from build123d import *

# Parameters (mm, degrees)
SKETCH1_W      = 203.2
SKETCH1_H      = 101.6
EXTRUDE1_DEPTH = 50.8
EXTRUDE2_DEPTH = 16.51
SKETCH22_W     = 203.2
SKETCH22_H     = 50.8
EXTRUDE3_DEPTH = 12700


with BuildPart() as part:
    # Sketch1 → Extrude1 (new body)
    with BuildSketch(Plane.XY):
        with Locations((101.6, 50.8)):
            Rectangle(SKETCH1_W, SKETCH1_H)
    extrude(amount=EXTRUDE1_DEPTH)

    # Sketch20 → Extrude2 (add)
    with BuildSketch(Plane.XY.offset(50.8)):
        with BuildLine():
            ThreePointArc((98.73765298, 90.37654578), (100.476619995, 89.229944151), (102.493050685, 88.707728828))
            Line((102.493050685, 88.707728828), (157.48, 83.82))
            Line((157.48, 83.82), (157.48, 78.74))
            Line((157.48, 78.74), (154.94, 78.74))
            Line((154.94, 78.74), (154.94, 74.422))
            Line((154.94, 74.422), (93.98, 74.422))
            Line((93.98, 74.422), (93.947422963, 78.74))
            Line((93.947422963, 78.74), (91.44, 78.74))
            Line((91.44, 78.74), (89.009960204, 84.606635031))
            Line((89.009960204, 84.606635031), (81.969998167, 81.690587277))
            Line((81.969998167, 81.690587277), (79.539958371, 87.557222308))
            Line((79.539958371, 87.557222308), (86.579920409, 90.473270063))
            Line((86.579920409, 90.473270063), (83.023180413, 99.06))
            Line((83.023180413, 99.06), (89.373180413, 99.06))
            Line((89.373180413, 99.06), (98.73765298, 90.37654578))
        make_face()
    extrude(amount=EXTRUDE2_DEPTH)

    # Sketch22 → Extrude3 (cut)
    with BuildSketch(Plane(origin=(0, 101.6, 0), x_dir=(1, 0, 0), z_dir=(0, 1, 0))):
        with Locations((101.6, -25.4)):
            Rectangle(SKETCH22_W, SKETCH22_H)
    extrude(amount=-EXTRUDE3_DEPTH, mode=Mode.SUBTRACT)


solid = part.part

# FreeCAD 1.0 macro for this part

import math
import FreeCAD as App
import Part
import Sketcher
from FreeCAD import Vector
Q = App.Units.Quantity


def add_polygon(sketch, points):
    """Adds a closed chain of lines whose ends are joined by coincident constraints."""
    first, n = sketch.GeometryCount, len(points)
    for a, b in zip(points, points[1:] + points[:1]):
        sketch.addGeometry(Part.LineSegment(App.Vector(*a, 0), App.Vector(*b, 0)), False)
    for i in range(n):
        sketch.addConstraint(Sketcher.Constraint("Coincident", first + i, 2, first + (i + 1) % n, 1))

doc = App.newDocument("Part")
body = doc.addObject("PartDesign::Body", "Body")

sketch1 = doc.addObject("Sketcher::SketchObject", "Sketch")
body.addObject(sketch1)
sketch1.AttachmentSupport = (doc.XY_Plane, [""])
sketch1.MapMode = "FlatFace"
add_polygon(sketch1, [(0, 102), (0, 0), (203, 0), (203, 102)])
sketch1.addConstraint([
    Sketcher.Constraint("Vertical", 0),
    Sketcher.Constraint("Horizontal", 1),
    Sketcher.Constraint("Vertical", 2),
    Sketcher.Constraint("Horizontal", 3),
    Sketcher.Constraint("Coincident", 0, 2, -1, 1),
    Sketcher.Constraint("DistanceX", 1, 1, 1, 2, Q("8 in")),
    Sketcher.Constraint("DistanceY", 0, 2, 0, 1, Q("4 in")),
])
pad1 = doc.addObject("PartDesign::Pad", "Pad")
body.addObject(pad1)
pad1.Profile = sketch1
pad1.Length = Q("2 in")

sketch2 = doc.addObject("Sketcher::SketchObject", "Sketch001")
body.addObject(sketch2)
sketch2.AttachmentSupport = (doc.XY_Plane, [""])
sketch2.MapMode = "FlatFace"
sketch2.AttachmentOffset = App.Placement(Vector(0, 0, 2 * 25.4), App.Rotation())
sketch2.addGeometry([
    Part.ArcOfCircle(Part.Circle(Vector(103.1, 95, 0), Vector(0, 0, 1), 6.4), math.radians(-133), math.radians(-95)),
    Part.LineSegment(Vector(98.7, 90.4, 0), Vector(89.4, 99.1, 0)),
    Part.LineSegment(Vector(89.4, 99.1, 0), Vector(83, 99.1, 0)),
    Part.LineSegment(Vector(83, 99.1, 0), Vector(86.6, 90.5, 0)),
    Part.LineSegment(Vector(86.6, 90.5, 0), Vector(79.5, 87.6, 0)),
    Part.LineSegment(Vector(79.5, 87.6, 0), Vector(82, 81.7, 0)),
    Part.LineSegment(Vector(82, 81.7, 0), Vector(89, 84.6, 0)),
    Part.LineSegment(Vector(89, 84.6, 0), Vector(91.4, 78.7, 0)),
    Part.LineSegment(Vector(91.4, 78.7, 0), Vector(93.9, 78.7, 0)),
    Part.LineSegment(Vector(93.9, 78.7, 0), Vector(94, 74.4, 0)),
    Part.LineSegment(Vector(94, 74.4, 0), Vector(154.9, 74.4, 0)),
    Part.LineSegment(Vector(154.9, 74.4, 0), Vector(154.9, 78.7, 0)),
    Part.LineSegment(Vector(154.9, 78.7, 0), Vector(157.5, 78.7, 0)),
    Part.LineSegment(Vector(157.5, 78.7, 0), Vector(157.5, 83.8, 0)),
    Part.LineSegment(Vector(157.5, 83.8, 0), Vector(102.5, 88.7, 0)),
], False)
sketch2.addConstraint([
    Sketcher.Constraint("Tangent", 0, 1, 1, 1),
    Sketcher.Constraint("Coincident", 1, 2, 2, 1),
    Sketcher.Constraint("Coincident", 2, 2, 3, 1),
    Sketcher.Constraint("Coincident", 3, 2, 4, 1),
    Sketcher.Constraint("Coincident", 4, 2, 5, 1),
    Sketcher.Constraint("Coincident", 5, 2, 6, 1),
    Sketcher.Constraint("Coincident", 6, 2, 7, 1),
    Sketcher.Constraint("Coincident", 7, 2, 8, 1),
    Sketcher.Constraint("Coincident", 8, 2, 9, 1),
    Sketcher.Constraint("Coincident", 9, 2, 10, 1),
    Sketcher.Constraint("Coincident", 10, 2, 11, 1),
    Sketcher.Constraint("Coincident", 11, 2, 12, 1),
    Sketcher.Constraint("Coincident", 12, 2, 13, 1),
    Sketcher.Constraint("Coincident", 13, 2, 14, 1),
    Sketcher.Constraint("Tangent", 14, 2, 0, 2),
    Sketcher.Constraint("Horizontal", 2),
    Sketcher.Constraint("Horizontal", 8),
    Sketcher.Constraint("Horizontal", 10),
    Sketcher.Constraint("Vertical", 11),
    Sketcher.Constraint("Horizontal", 12),
    Sketcher.Constraint("Vertical", 13),
    Sketcher.Constraint("Perpendicular", 3, 4),
    Sketcher.Constraint("Perpendicular", 4, 5),
    Sketcher.Constraint("Perpendicular", 5, 6),
    Sketcher.Constraint("Perpendicular", 6, 7),
    Sketcher.Constraint("Horizontal", 8, 2, 11, 2),
    Sketcher.Constraint("Equal", 4, 6),
    Sketcher.Constraint("Equal", 5, 7),
    Sketcher.Constraint("Radius", 0, Q("0.25 in")),
    Sketcher.Constraint("DistanceX", 10, 1, 10, 2, Q("2.4 in")),
    Sketcher.Constraint("DistanceX", 12, 1, 12, 2, Q("0.1 in")),
    Sketcher.Constraint("DistanceY", 13, 1, 13, 2, Q("0.2 in")),
    Sketcher.Constraint("Distance", 4, Q("0.3 in")),
    Sketcher.Constraint("DistanceX", 2, 2, 2, 1, Q("0.25 in")),
    Sketcher.Constraint("DistanceY", 11, 1, 11, 2, Q("0.17 in")),
    Sketcher.Constraint("DistanceY", -1, 1, 1, 2, Q("3.9 in")),
    Sketcher.Constraint("DistanceX", -1, 1, 7, 2, Q("3.6 in")),
    Sketcher.Constraint("DistanceY", -1, 1, 7, 2, Q("3.1 in")),
    Sketcher.Constraint("DistanceX", -1, 1, 9, 2, Q("3.7 in")),
    Sketcher.Constraint("Angle", 3, Q("-67.5 deg")),
    Sketcher.Constraint("Distance", 5, Q("0.25 in")),
    Sketcher.Constraint("DistanceX", 4, 2, 0, 3, Q("0.9258 in")),
    Sketcher.Constraint("DistanceX", 8, 1, 8, 2, Q("2.507423 mm")),
    Sketcher.Constraint("DistanceY", -1, 1, 0, 3, Q("95.03279 mm")),
])
pad2 = doc.addObject("PartDesign::Pad", "Pad001")
body.addObject(pad2)
pad2.Profile = sketch2
pad2.Length = Q("0.65 in")

sketch3 = doc.addObject("Sketcher::SketchObject", "Sketch002")
body.addObject(sketch3)
sketch3.AttachmentSupport = (doc.XZ_Plane, [""])
sketch3.MapMode = "FlatFace"
sketch3.AttachmentOffset = App.Placement(Vector(0, 0, -4 * 25.4), App.Rotation())
add_polygon(sketch3, [(0, 0), (0, 51), (203, 51), (203, 0)])
sketch3.addConstraint([
    Sketcher.Constraint("Vertical", 0),
    Sketcher.Constraint("Horizontal", 1),
    Sketcher.Constraint("Vertical", 2),
    Sketcher.Constraint("Horizontal", 3),
    Sketcher.Constraint("Coincident", 3, 2, -1, 1),
    Sketcher.Constraint("DistanceX", 1, 1, 1, 2, Q("8 in")),
    Sketcher.Constraint("DistanceY", 0, 1, 0, 2, Q("2 in")),
])
pocket1 = doc.addObject("PartDesign::Pocket", "Pocket")
body.addObject(pocket1)
pocket1.Profile = sketch3
pocket1.Length = Q("500 in")
pocket1.Reversed = True

doc.recompute()
